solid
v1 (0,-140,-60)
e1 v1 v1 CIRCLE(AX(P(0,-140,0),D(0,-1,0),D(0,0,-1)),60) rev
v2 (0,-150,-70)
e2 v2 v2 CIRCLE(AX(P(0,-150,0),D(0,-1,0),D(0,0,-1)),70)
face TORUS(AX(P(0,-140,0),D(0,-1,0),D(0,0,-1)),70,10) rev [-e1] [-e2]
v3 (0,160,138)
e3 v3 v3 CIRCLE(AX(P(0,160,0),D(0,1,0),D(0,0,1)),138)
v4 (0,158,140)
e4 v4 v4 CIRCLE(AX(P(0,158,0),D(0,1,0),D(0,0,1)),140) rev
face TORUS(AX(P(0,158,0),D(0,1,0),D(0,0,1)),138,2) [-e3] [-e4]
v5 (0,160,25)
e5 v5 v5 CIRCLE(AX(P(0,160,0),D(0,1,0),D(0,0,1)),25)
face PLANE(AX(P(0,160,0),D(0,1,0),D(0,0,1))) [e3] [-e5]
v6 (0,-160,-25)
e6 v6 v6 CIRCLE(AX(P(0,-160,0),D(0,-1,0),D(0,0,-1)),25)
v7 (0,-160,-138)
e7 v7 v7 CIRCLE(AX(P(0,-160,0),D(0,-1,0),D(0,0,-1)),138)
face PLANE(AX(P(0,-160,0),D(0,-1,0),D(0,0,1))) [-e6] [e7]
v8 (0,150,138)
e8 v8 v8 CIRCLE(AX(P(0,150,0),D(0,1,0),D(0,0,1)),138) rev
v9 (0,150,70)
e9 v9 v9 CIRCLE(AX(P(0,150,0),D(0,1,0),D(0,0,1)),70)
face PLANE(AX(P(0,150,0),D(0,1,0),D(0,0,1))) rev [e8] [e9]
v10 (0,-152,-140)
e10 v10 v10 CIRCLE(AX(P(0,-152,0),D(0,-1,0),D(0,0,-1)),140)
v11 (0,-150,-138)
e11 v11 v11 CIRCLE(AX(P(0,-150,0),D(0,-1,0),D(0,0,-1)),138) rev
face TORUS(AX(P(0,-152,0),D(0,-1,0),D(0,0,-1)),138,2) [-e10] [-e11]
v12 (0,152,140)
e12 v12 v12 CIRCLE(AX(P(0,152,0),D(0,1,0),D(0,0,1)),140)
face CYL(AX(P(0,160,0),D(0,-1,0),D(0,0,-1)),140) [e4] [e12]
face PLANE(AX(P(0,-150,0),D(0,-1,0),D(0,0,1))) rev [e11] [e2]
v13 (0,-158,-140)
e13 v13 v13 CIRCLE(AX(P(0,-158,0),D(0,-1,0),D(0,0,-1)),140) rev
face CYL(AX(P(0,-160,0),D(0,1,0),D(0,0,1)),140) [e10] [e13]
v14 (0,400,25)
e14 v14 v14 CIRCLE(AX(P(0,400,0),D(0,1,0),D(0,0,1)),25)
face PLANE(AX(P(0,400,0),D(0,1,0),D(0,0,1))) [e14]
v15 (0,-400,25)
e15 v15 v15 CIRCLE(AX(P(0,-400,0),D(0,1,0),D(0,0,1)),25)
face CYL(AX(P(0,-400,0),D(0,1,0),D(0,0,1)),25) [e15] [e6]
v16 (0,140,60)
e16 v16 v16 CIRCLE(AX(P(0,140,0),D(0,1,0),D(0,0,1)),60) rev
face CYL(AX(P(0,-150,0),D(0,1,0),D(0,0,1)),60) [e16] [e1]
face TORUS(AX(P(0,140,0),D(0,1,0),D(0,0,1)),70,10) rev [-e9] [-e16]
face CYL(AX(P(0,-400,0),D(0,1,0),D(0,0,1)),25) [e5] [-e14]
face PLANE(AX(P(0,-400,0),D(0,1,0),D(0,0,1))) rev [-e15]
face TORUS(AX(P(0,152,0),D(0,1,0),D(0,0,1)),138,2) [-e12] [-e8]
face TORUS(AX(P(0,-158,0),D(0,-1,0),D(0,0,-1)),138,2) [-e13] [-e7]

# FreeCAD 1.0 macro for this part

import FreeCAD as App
import Part
import Sketcher

V = App.Vector


def edges_at(feature, points):
    """Names of the edges that pass closest to the given points."""
    edges = feature.Shape.Edges
    near = lambda p: min(range(len(edges)), key=lambda i: edges[i].distToShape(Part.Vertex(*p))[0])
    return sorted({f"Edge{near(p) + 1}" for p in points})

doc = App.newDocument("Part")
params = doc.addObject("Spreadsheet::Sheet", "Params")
for row, (alias, value) in enumerate([
    ("sketch1_diameter", "120 mm"),
    ("pad1_length", "150 mm"),
    ("pad1_length2", "150 mm"),
    ("sketch2_diameter", "280 mm"),
    ("pad2_length", "10 mm"),
    ("sketch3_diameter", "50 mm"),
    ("pad3_length", "400 mm"),
    ("pad3_length2", "400 mm"),
    ("fillet_radius", "10 mm"),
    ("fillet2_radius", "10 mm"),
    ("fillet3_radius", "2 mm"),
    ("fillet4_radius", "2 mm"),
    ("fillet5_radius", "2 mm"),
    ("fillet6_radius", "2 mm"),
], start=1):
    params.set(f"A{row}", alias)
    params.set(f"B{row}", "=" + value)
    params.setAlias(f"B{row}", alias)

body = doc.addObject("PartDesign::Body", "Body")

# Sketch on XZ plane
sketch1 = doc.addObject("Sketcher::SketchObject", "Sketch")
body.addObject(sketch1)
sketch1.AttachmentSupport = (doc.XZ_Plane, [""])
sketch1.MapMode = "FlatFace"
sketch1.addGeometry(Part.Circle(V(0, 0, 0), V(0, 0, 1), 60), False)
sketch1.addConstraint([
    Sketcher.Constraint("Coincident", 0, 3, -1, 1),
    Sketcher.Constraint("Diameter", 0, 120.0),
])
sketch1.setExpression("Constraints[1]", "Params.sketch1_diameter")
pad1 = doc.addObject("PartDesign::Pad", "Pad")
body.addObject(pad1)
pad1.Profile = sketch1
pad1.Type = "TwoLengths"
pad1.setExpression("Length", "Params.pad1_length")
pad1.setExpression("Length2", "Params.pad1_length2")
pad1.Reversed = True

# Sketch on XZ plane
sketch2 = doc.addObject("Sketcher::SketchObject", "Sketch001")
body.addObject(sketch2)
sketch2.AttachmentSupport = (doc.XZ_Plane, [""])
sketch2.MapMode = "FlatFace"
sketch2.AttachmentOffset = App.Placement(V(0, 0, -150), App.Rotation())
sketch2.addGeometry(Part.Circle(V(0, 0, 0), V(0, 0, 1), 140), False)
sketch2.addConstraint([
    Sketcher.Constraint("Coincident", 0, 3, -1, 1),
    Sketcher.Constraint("Diameter", 0, 280.0),
])
sketch2.setExpression("Constraints[1]", "Params.sketch2_diameter")
pad2 = doc.addObject("PartDesign::Pad", "Pad001")
body.addObject(pad2)
pad2.Profile = sketch2
pad2.setExpression("Length", "Params.pad2_length")
pad2.Reversed = True
doc.recompute()

mirrored = doc.addObject("PartDesign::Mirrored", "Mirrored")
body.addObject(mirrored)
mirrored.Originals = [pad2]
mirrored.MirrorPlane = (doc.XZ_Plane, [""])
body.Tip = mirrored

# Sketch on XZ plane
sketch3 = doc.addObject("Sketcher::SketchObject", "Sketch002")
body.addObject(sketch3)
sketch3.AttachmentSupport = (doc.XZ_Plane, [""])
sketch3.MapMode = "FlatFace"
sketch3.addGeometry(Part.Circle(V(0, 0, 0), V(0, 0, 1), 25), False)
sketch3.addConstraint([
    Sketcher.Constraint("Coincident", 0, 3, -1, 1),
    Sketcher.Constraint("Diameter", 0, 50.0),
])
sketch3.setExpression("Constraints[1]", "Params.sketch3_diameter")
pad3 = doc.addObject("PartDesign::Pad", "Pad002")
body.addObject(pad3)
pad3.Profile = sketch3
pad3.Type = "TwoLengths"
pad3.setExpression("Length", "Params.pad3_length")
pad3.setExpression("Length2", "Params.pad3_length2")
pad3.Reversed = True
doc.recompute()

fillet = doc.addObject("PartDesign::Fillet", "Fillet")
body.addObject(fillet)
fillet.Base = (pad3, edges_at(pad3, [(-60, 150, 0)]))
fillet.setExpression("Radius", "Params.fillet_radius")
doc.recompute()

fillet2 = doc.addObject("PartDesign::Fillet", "Fillet001")
body.addObject(fillet2)
fillet2.Base = (fillet, edges_at(fillet, [(-60, -150, 0)]))
fillet2.setExpression("Radius", "Params.fillet2_radius")
doc.recompute()

fillet3 = doc.addObject("PartDesign::Fillet", "Fillet002")
body.addObject(fillet3)
fillet3.Base = (fillet2, edges_at(fillet2, [(-140, 150, 0)]))
fillet3.setExpression("Radius", "Params.fillet3_radius")
doc.recompute()

fillet4 = doc.addObject("PartDesign::Fillet", "Fillet003")
body.addObject(fillet4)
fillet4.Base = (fillet3, edges_at(fillet3, [(-140, -150, 0)]))
fillet4.setExpression("Radius", "Params.fillet4_radius")
doc.recompute()

fillet5 = doc.addObject("PartDesign::Fillet", "Fillet004")
body.addObject(fillet5)
fillet5.Base = (fillet4, edges_at(fillet4, [(-140, 160, 0)]))
fillet5.setExpression("Radius", "Params.fillet5_radius")
doc.recompute()

fillet6 = doc.addObject("PartDesign::Fillet", "Fillet005")
body.addObject(fillet6)
fillet6.Base = (fillet5, edges_at(fillet5, [(-140, -160, 0)]))
fillet6.setExpression("Radius", "Params.fillet6_radius")

doc.recompute()
